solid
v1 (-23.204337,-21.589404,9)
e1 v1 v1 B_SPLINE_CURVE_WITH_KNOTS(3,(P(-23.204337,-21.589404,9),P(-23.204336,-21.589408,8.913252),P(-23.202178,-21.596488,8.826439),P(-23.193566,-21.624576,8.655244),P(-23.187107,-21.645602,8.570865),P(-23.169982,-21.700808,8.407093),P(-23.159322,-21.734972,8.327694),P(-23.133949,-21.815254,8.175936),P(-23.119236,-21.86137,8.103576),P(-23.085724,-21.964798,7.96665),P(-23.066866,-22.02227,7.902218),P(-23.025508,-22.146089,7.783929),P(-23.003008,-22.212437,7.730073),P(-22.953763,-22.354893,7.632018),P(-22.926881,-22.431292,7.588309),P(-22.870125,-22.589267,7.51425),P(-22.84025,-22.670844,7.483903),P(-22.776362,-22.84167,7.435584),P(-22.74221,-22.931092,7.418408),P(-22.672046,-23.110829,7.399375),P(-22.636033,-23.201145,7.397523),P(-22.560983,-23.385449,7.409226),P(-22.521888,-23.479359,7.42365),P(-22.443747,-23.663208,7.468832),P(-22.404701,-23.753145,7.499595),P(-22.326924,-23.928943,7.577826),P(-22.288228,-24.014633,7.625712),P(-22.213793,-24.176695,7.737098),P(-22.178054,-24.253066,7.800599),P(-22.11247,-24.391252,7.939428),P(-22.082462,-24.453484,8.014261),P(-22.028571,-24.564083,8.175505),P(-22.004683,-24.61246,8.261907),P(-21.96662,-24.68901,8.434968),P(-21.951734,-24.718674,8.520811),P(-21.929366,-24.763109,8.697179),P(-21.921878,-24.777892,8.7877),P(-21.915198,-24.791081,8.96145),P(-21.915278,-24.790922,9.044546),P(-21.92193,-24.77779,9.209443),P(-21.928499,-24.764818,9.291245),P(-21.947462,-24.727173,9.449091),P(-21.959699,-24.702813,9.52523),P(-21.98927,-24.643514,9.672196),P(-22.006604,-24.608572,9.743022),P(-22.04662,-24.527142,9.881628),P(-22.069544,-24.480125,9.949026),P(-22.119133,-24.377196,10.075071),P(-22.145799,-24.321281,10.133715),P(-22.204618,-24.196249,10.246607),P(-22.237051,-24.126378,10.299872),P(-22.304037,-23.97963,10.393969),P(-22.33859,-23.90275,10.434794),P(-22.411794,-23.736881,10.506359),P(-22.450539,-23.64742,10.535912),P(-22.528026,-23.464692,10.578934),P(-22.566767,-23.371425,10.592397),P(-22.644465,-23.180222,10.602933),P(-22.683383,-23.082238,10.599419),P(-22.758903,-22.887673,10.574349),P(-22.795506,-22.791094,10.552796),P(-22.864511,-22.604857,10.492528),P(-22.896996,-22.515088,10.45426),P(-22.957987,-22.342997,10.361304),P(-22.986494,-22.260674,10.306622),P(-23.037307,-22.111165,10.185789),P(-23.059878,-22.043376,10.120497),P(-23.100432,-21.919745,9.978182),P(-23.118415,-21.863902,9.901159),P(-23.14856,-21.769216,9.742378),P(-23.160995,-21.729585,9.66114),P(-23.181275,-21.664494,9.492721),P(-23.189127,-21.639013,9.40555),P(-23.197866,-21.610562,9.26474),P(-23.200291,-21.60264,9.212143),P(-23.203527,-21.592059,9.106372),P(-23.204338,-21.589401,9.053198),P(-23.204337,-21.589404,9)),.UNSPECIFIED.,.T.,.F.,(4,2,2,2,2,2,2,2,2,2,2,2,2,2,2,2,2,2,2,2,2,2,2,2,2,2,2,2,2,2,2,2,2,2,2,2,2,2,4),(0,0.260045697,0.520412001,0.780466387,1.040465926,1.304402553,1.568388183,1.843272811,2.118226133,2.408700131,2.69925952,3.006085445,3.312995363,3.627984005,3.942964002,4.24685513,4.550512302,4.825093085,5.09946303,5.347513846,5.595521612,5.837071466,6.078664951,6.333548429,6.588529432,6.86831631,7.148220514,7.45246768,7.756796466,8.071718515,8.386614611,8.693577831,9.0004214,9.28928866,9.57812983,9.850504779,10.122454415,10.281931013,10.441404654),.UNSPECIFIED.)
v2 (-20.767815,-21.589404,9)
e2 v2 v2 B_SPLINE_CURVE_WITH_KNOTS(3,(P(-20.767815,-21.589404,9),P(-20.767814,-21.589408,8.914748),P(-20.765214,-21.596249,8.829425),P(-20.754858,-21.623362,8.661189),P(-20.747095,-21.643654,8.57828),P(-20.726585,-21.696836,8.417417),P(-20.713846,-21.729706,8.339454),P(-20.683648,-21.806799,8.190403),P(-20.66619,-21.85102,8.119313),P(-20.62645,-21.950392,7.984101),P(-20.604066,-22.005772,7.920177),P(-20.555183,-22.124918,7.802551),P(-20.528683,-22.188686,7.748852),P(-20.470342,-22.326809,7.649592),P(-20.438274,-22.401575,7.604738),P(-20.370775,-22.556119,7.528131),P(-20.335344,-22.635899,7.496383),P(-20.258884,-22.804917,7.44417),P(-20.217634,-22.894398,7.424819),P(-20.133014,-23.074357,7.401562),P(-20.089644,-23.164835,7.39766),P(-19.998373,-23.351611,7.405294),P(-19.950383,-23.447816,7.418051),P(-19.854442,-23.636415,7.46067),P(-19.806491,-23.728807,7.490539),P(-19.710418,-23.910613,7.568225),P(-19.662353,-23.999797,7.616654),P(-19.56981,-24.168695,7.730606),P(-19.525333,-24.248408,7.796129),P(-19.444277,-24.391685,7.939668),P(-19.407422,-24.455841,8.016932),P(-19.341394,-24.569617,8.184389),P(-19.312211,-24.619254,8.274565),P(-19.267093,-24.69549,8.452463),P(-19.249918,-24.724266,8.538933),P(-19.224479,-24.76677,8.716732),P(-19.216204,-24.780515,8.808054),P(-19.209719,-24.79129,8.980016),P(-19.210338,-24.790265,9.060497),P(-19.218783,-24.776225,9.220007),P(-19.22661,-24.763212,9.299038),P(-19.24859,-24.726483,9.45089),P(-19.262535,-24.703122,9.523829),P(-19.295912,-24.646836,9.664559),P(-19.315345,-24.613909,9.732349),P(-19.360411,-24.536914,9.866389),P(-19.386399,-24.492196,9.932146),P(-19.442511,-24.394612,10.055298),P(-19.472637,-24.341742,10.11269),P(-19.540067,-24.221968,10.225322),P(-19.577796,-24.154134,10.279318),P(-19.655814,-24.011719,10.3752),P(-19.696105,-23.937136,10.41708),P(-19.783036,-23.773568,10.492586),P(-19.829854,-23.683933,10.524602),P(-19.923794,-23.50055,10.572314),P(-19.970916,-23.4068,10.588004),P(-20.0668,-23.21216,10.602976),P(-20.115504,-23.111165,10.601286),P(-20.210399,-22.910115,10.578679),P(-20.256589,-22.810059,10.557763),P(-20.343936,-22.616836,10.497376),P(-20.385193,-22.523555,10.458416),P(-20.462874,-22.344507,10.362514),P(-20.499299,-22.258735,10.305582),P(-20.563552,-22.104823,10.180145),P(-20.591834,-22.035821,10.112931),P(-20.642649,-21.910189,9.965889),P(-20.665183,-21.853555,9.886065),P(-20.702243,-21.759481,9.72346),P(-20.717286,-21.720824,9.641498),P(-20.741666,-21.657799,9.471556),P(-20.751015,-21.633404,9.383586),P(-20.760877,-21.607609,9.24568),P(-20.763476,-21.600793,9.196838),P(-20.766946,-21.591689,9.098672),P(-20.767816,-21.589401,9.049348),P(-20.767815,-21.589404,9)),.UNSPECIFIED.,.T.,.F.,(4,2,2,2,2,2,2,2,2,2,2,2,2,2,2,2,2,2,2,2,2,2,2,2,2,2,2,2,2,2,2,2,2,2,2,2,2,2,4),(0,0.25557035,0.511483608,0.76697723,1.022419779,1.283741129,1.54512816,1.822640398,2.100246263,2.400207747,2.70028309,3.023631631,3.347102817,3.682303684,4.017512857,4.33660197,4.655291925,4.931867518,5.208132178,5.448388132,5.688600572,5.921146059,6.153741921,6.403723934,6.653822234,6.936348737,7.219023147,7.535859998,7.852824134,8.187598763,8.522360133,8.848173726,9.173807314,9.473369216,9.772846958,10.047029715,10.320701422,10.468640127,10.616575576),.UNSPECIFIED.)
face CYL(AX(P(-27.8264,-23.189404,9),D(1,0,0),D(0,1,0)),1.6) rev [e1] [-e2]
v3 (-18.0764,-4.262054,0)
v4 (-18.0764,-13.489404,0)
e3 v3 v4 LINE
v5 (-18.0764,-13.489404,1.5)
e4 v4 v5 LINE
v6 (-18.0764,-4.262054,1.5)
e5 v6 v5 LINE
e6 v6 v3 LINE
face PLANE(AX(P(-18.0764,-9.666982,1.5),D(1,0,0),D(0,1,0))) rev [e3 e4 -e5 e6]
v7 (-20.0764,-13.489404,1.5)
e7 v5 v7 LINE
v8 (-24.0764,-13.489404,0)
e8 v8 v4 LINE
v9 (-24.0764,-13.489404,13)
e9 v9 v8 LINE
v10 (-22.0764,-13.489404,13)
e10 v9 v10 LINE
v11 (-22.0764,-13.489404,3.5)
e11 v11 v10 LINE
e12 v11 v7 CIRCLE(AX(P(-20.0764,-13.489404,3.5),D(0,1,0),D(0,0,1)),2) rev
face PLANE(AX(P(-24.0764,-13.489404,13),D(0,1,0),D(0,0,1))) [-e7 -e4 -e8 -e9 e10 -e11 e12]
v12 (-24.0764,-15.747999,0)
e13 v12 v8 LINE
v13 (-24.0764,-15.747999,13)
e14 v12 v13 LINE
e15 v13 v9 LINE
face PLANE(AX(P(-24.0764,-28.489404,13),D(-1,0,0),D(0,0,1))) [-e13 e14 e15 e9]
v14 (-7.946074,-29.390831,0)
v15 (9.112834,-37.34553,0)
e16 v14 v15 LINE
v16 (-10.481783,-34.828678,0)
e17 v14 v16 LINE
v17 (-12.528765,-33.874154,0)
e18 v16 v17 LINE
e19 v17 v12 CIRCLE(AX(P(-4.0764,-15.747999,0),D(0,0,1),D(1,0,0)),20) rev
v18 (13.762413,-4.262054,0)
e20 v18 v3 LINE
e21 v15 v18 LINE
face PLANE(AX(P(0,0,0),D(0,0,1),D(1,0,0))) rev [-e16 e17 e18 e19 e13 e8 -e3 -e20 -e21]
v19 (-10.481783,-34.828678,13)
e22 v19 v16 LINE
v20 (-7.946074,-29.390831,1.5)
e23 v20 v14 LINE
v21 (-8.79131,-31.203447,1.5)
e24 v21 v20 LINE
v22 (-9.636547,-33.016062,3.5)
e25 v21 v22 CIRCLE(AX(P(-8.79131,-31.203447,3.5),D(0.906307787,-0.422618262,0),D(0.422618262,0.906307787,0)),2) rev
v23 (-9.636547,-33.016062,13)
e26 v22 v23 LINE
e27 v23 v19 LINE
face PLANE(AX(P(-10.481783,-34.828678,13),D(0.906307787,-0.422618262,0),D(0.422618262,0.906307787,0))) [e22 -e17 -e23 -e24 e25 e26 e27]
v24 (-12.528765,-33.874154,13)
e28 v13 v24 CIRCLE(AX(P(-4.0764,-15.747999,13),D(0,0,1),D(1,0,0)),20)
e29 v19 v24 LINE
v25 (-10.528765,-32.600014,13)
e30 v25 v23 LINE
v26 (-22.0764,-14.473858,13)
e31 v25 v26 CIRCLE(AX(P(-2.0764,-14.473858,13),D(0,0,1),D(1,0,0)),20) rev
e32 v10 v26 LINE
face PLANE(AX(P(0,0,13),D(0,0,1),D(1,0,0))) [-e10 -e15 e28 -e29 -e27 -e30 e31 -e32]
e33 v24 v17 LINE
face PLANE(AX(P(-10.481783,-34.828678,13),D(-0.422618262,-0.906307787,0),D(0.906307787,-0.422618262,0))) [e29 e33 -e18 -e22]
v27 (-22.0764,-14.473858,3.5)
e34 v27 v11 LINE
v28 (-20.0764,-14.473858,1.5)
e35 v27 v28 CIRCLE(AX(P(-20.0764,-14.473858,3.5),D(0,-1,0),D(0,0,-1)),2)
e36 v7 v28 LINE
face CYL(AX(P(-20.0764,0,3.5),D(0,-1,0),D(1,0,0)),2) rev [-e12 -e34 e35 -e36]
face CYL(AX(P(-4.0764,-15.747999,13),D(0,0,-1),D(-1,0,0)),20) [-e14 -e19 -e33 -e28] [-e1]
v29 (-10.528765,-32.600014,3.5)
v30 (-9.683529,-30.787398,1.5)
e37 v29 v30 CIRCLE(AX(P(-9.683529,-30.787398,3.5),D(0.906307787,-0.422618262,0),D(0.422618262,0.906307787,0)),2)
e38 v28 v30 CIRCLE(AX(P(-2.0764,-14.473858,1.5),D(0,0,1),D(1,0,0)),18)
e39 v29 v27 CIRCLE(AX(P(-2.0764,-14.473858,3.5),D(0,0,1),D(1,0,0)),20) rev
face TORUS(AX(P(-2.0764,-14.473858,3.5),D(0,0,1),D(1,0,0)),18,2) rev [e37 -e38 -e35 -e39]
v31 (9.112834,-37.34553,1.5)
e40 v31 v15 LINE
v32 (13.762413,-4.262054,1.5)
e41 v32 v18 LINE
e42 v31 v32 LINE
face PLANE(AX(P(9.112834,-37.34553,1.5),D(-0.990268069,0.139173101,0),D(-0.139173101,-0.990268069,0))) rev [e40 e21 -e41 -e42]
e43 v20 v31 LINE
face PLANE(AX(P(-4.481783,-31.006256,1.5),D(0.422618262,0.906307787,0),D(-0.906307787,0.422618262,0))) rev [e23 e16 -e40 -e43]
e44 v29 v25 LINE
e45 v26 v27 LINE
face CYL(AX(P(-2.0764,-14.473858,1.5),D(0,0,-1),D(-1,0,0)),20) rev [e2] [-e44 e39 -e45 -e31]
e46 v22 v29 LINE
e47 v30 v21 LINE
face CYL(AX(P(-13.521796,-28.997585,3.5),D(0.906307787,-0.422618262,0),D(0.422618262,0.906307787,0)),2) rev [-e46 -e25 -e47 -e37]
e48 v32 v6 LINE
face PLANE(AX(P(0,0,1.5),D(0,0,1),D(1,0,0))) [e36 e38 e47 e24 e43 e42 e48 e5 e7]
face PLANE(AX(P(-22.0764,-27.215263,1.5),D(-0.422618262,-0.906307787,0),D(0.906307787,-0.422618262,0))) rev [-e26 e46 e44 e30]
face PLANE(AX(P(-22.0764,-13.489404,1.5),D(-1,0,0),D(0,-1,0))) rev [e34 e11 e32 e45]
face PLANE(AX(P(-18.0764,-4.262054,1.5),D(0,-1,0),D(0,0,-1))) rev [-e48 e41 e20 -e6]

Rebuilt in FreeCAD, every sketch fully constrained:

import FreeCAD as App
import Part
import Sketcher
Q = App.Units.Quantity


def edges_at(feature, points):
    """Names of the edges that pass closest to the given points."""
    edges = feature.Shape.Edges
    near = lambda p: min(range(len(edges)), key=lambda i: edges[i].distToShape(Part.Vertex(*p))[0])
    return sorted({f"Edge{near(p) + 1}" for p in points})

doc = App.newDocument("Part")
body = doc.addObject("PartDesign::Body", "Body")

sketch1 = body.newObject("Sketcher::SketchObject", "Sketch")
sketch1.AttachmentSupport = (doc.getObject("XY_Plane"), [""])
sketch1.MapMode = "FlatFace"
sketch1.addGeometry(Part.LineSegment(App.Vector(-4, -31, 0), App.Vector(9, -37, 0)), False)
sketch1.addGeometry(Part.LineSegment(App.Vector(9, -37, 0), App.Vector(14, -4, 0)), False)
sketch1.addGeometry(Part.LineSegment(App.Vector(14, -4, 0), App.Vector(-18, -4, 0)), False)
sketch1.addGeometry(Part.LineSegment(App.Vector(-18, -4, 0), App.Vector(-18, -25, 0)), False)
sketch1.addGeometry(Part.LineSegment(App.Vector(-18, -25, 0), App.Vector(-4, -31, 0)), False)
sketch1.addConstraint(Sketcher.Constraint("Coincident", 0, 2, 1, 1))
sketch1.addConstraint(Sketcher.Constraint("Coincident", 1, 2, 2, 1))
sketch1.addConstraint(Sketcher.Constraint("Coincident", 2, 2, 3, 1))
sketch1.addConstraint(Sketcher.Constraint("Coincident", 3, 2, 4, 1))
sketch1.addConstraint(Sketcher.Constraint("Coincident", 4, 2, 0, 1))
sketch1.addConstraint(Sketcher.Constraint("Horizontal", 2))
sketch1.addConstraint(Sketcher.Constraint("Vertical", 3))
sketch1.addConstraint(Sketcher.Constraint("Parallel", 0, 4))
sketch1.addConstraint(Sketcher.Constraint("Equal", 0, 4))
sketch1.addConstraint(Sketcher.Constraint("Angle", 0, Q("-25 deg")))
sketch1.addConstraint(Sketcher.Constraint("Angle", 1, Q("82 deg")))
sketch1.addConstraint(Sketcher.Constraint("Distance", 0, 15.0))
sketch1.addConstraint(Sketcher.Constraint("DistanceX", 2, 2, -1, 1, 18.0764))
sketch1.addConstraint(Sketcher.Constraint("DistanceY", 4, 2, 2, 2, 26.744202))
sketch1.addConstraint(Sketcher.Constraint("DistanceY", 0, 2, -1, 1, 37.34553))
pad1 = body.newObject("PartDesign::Pad", "Pad")
pad1.Profile = sketch1
pad1.Length = 1.5

sketch2 = body.newObject("Sketcher::SketchObject", "Sketch001")
sketch2.AttachmentSupport = (doc.getObject("XY_Plane"), [""])
sketch2.MapMode = "FlatFace"
sketch2.addGeometry(Part.LineSegment(App.Vector(-24, -28, 0), App.Vector(-24, -13, 0)), False)
sketch2.addGeometry(Part.LineSegment(App.Vector(-24, -13, 0), App.Vector(-17, -13, 0)), False)
sketch2.addGeometry(Part.LineSegment(App.Vector(-17, -13, 0), App.Vector(-17, -24, 0)), False)
sketch2.addGeometry(Part.LineSegment(App.Vector(-17, -24, 0), App.Vector(-8, -28, 0)), False)
sketch2.addGeometry(Part.LineSegment(App.Vector(-8, -28, 0), App.Vector(-10, -35, 0)), False)
sketch2.addGeometry(Part.LineSegment(App.Vector(-10, -35, 0), App.Vector(-24, -28, 0)), False)
sketch2.addConstraint(Sketcher.Constraint("Coincident", 0, 2, 1, 1))
sketch2.addConstraint(Sketcher.Constraint("Coincident", 1, 2, 2, 1))
sketch2.addConstraint(Sketcher.Constraint("Coincident", 2, 2, 3, 1))
sketch2.addConstraint(Sketcher.Constraint("Coincident", 3, 2, 4, 1))
sketch2.addConstraint(Sketcher.Constraint("Coincident", 4, 2, 5, 1))
sketch2.addConstraint(Sketcher.Constraint("Coincident", 5, 2, 0, 1))
sketch2.addConstraint(Sketcher.Constraint("Vertical", 0))
sketch2.addConstraint(Sketcher.Constraint("Horizontal", 1))
sketch2.addConstraint(Sketcher.Constraint("Vertical", 2))
sketch2.addConstraint(Sketcher.Constraint("Perpendicular", 3, 4))
sketch2.addConstraint(Sketcher.Constraint("Perpendicular", 4, 5))
sketch2.addConstraint(Sketcher.Constraint("DistanceX", 1, 1, 1, 2, 7.0))
sketch2.addConstraint(Sketcher.Constraint("DistanceY", 0, 1, 0, 2, 15.0))
sketch2.addConstraint(Sketcher.Constraint("Angle", 3, Q("-25 deg")))
sketch2.addConstraint(Sketcher.Constraint("Distance", 4, 7.0))
sketch2.addConstraint(Sketcher.Constraint("Distance", 5, 15.0))
sketch2.addConstraint(Sketcher.Constraint("DistanceX", 0, 2, -1, 1, 24.0764))
sketch2.addConstraint(Sketcher.Constraint("DistanceY", 0, 2, -1, 1, 13.489404))
pad2 = body.newObject("PartDesign::Pad", "Pad001")
pad2.Profile = sketch2
pad2.Length = 13

sketch3 = body.newObject("Sketcher::SketchObject", "Sketch002")
sketch3.AttachmentSupport = (doc.getObject("XY_Plane"), [""])
sketch3.MapMode = "FlatFace"
sketch3.AttachmentOffset = App.Placement(App.Vector(0, 0, 13), App.Rotation())
sketch3.addGeometry(Part.LineSegment(App.Vector(-17.1, -13.5, 0), App.Vector(-22.1, -13.5, 0)), False)
sketch3.addGeometry(Part.LineSegment(App.Vector(-22.1, -13.5, 0), App.Vector(-22.1, -27.2, 0)), False)
sketch3.addGeometry(Part.LineSegment(App.Vector(-22.1, -27.2, 0), App.Vector(-9.6, -33, 0)), False)
sketch3.addGeometry(Part.LineSegment(App.Vector(-9.6, -33, 0), App.Vector(-7.5, -28.5, 0)), False)
sketch3.addGeometry(Part.LineSegment(App.Vector(-7.5, -28.5, 0), App.Vector(-17.1, -24, 0)), False)
sketch3.addGeometry(Part.LineSegment(App.Vector(-17.1, -24, 0), App.Vector(-17.1, -13.5, 0)), False)
sketch3.addConstraint(Sketcher.Constraint("Coincident", 0, 2, 1, 1))
sketch3.addConstraint(Sketcher.Constraint("Coincident", 1, 2, 2, 1))
sketch3.addConstraint(Sketcher.Constraint("Coincident", 2, 2, 3, 1))
sketch3.addConstraint(Sketcher.Constraint("Coincident", 3, 2, 4, 1))
sketch3.addConstraint(Sketcher.Constraint("Coincident", 4, 2, 5, 1))
sketch3.addConstraint(Sketcher.Constraint("Coincident", 5, 2, 0, 1))
sketch3.addConstraint(Sketcher.Constraint("Horizontal", 0))
sketch3.addConstraint(Sketcher.Constraint("Vertical", 1))
sketch3.addConstraint(Sketcher.Constraint("Vertical", 5))
sketch3.addConstraint(Sketcher.Constraint("Perpendicular", 2, 3))
sketch3.addConstraint(Sketcher.Constraint("Perpendicular", 3, 4))
sketch3.addConstraint(Sketcher.Constraint("DistanceX", 0, 2, 0, 1, 5.0))
sketch3.addConstraint(Sketcher.Constraint("Angle", 2, Q("-25 deg")))
sketch3.addConstraint(Sketcher.Constraint("Distance", 3, 5.0))
sketch3.addConstraint(Sketcher.Constraint("DistanceY", 1, 2, 1, 1, 13.725859))
sketch3.addConstraint(Sketcher.Constraint("DistanceX", 0, 2, -1, 1, 22.0764))
sketch3.addConstraint(Sketcher.Constraint("DistanceY", 2, 2, 1, 2, 5.800799))
sketch3.addConstraint(Sketcher.Constraint("DistanceY", 0, 2, -1, 1, 13.489404))
pocket1 = body.newObject("PartDesign::Pocket", "Pocket")
pocket1.Profile = sketch3
pocket1.Length = 11.5
doc.recompute()

fillet = body.newObject("PartDesign::Fillet", "Fillet")
fillet.Base = (pocket1, edges_at(pocket1, [(-24.076, -28.489, 6.5), (-22.076, -27.215, 7.25)]))
fillet.Radius = 20
doc.recompute()

fillet2 = body.newObject("PartDesign::Fillet", "Fillet001")
fillet2.Base = (fillet, edges_at(fillet, [(-22.076, -13.982, 1.5), (-10.083, -32.808, 1.5), (-18.944, -25.22, 1.5)]))
fillet2.Radius = 2

sketch4 = body.newObject("Sketcher::SketchObject", "Sketch003")
sketch4.AttachmentSupport = (doc.getObject("YZ_Plane"), [""])
sketch4.MapMode = "FlatFace"
sketch4.AttachmentOffset = App.Placement(App.Vector(0, 0, -22.0764), App.Rotation())
sketch4.addGeometry(Part.Circle(App.Vector(-23.2, 9, 0), App.Vector(0, 0, 1), 1.6), False)
sketch4.addConstraint(Sketcher.Constraint("Diameter", 0, 3.2))
sketch4.addConstraint(Sketcher.Constraint("DistanceY", -1, 1, 0, 3, 9.0))
sketch4.addConstraint(Sketcher.Constraint("DistanceX", 0, 3, -1, 1, 23.189404))
pocket2 = body.newObject("PartDesign::Pocket", "Pocket001")
pocket2.Profile = sketch4
pocket2.Length = 11.5
pocket2.Midplane = True

doc.recompute()
